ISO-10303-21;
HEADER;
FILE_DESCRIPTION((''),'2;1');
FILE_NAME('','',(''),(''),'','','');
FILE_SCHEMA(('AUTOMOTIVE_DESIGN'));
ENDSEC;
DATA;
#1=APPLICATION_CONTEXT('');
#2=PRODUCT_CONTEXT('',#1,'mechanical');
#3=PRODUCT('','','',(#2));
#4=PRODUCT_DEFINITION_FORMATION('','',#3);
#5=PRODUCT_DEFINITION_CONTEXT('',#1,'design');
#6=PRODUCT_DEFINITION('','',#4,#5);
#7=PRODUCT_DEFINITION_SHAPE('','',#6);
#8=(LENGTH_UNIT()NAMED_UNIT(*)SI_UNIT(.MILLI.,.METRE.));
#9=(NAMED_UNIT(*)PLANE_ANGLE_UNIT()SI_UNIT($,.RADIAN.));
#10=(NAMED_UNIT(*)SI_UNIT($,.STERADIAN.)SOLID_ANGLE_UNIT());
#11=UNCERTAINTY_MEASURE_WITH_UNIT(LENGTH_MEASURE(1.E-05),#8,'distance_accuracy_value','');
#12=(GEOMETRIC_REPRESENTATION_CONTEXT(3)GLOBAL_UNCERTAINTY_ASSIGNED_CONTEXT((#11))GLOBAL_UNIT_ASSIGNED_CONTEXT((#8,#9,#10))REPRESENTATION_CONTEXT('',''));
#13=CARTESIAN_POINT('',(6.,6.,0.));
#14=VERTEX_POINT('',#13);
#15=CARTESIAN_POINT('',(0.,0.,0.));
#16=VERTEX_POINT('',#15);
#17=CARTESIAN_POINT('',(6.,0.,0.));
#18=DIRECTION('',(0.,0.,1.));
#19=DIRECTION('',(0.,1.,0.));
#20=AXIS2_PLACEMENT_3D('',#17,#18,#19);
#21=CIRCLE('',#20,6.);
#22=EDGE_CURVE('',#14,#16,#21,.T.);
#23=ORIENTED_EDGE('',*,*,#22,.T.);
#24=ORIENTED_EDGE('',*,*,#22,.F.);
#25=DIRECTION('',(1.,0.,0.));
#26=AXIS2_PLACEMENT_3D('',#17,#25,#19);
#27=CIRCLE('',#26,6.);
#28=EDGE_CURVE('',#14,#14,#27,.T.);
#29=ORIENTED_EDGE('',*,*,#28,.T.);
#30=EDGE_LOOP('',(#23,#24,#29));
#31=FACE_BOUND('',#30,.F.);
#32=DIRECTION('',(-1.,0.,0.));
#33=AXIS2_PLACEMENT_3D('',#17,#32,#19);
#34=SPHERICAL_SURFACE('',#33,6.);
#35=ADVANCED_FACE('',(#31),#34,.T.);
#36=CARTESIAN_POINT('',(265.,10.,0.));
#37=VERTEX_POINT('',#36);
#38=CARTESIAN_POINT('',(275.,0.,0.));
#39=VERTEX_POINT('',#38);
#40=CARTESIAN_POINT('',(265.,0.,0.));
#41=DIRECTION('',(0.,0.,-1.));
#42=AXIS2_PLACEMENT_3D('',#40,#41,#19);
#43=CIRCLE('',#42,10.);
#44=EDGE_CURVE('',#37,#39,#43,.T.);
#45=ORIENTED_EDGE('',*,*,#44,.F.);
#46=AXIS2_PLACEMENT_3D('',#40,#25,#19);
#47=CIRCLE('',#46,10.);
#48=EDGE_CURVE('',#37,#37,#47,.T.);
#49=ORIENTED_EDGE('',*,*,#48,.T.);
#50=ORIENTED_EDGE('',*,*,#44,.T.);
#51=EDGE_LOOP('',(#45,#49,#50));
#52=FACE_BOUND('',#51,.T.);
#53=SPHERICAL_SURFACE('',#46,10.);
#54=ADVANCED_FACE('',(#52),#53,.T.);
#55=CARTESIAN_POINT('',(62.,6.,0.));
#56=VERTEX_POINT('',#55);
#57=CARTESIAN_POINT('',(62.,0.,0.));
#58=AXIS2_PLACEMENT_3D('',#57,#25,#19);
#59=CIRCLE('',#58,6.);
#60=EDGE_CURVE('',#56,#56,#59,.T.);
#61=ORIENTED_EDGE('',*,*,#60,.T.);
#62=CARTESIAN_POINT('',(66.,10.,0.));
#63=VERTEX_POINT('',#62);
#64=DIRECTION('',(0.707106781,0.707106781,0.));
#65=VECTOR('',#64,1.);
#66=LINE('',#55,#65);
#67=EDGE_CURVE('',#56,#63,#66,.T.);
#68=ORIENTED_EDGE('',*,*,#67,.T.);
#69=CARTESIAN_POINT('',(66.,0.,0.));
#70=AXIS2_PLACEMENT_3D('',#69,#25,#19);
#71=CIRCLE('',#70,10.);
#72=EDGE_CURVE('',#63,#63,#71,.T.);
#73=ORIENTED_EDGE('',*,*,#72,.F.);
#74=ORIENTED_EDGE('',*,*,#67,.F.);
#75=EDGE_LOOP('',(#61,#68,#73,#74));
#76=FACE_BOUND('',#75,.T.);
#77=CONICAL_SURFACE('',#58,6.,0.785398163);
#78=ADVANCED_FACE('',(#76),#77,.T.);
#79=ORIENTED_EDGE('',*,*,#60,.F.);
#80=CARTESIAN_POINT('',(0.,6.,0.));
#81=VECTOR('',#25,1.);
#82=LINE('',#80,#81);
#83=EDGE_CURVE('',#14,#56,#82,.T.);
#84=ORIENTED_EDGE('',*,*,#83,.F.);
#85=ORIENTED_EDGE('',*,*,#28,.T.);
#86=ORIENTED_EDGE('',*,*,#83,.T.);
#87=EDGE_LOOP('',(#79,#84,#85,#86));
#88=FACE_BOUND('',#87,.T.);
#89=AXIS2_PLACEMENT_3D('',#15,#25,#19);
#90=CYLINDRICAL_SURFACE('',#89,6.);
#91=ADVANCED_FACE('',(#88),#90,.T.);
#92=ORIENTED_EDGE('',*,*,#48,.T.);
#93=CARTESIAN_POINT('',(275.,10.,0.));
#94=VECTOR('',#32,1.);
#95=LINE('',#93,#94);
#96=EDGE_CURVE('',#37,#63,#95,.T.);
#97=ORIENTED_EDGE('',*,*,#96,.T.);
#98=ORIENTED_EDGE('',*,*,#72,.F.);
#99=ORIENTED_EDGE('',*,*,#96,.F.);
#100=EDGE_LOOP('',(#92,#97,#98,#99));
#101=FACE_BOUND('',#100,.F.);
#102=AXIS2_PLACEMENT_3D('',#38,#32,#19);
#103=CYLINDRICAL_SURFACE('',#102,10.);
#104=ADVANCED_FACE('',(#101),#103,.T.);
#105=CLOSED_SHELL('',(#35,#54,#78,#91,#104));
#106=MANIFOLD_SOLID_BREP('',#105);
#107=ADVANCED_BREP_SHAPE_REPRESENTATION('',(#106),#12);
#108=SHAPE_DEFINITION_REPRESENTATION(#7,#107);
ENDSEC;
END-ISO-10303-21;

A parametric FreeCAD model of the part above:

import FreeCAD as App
import Part
import Sketcher

V = App.Vector
Q = App.Units.Quantity


def edges_at(feature, points):
    """Names of the edges that pass closest to the given points."""
    edges = feature.Shape.Edges
    near = lambda p: min(range(len(edges)), key=lambda i: edges[i].distToShape(Part.Vertex(*p))[0])
    return sorted({f"Edge{near(p) + 1}" for p in points})


def add_polygon(sketch, points):
    """Adds a closed chain of lines whose ends are joined by coincident constraints."""
    first, n = sketch.GeometryCount, len(points)
    for a, b in zip(points, points[1:] + points[:1]):
        sketch.addGeometry(Part.LineSegment(App.Vector(*a, 0), App.Vector(*b, 0)), False)
    for i in range(n):
        sketch.addConstraint(Sketcher.Constraint("Coincident", first + i, 2, first + (i + 1) % n, 1))

doc = App.newDocument("Part")
body = doc.addObject("PartDesign::Body", "Body")

# Sketch on XY plane
sketch1 = body.newObject("Sketcher::SketchObject", "Sketch")
sketch1.AttachmentSupport = (doc.getObject("XY_Plane"), [""])
sketch1.MapMode = "FlatFace"
add_polygon(sketch1, [(0, 6), (0, 0), (275, 0), (275, 10), (66, 10), (62, 6)])  # lines 0-5
sketch1.addConstraint([
    Sketcher.Constraint("Vertical", 0),
    Sketcher.Constraint("Horizontal", 1),
    Sketcher.Constraint("Vertical", 2),
    Sketcher.Constraint("Horizontal", 3),
    Sketcher.Constraint("Horizontal", 5),
    Sketcher.Constraint("Coincident", 0, 2, -1, 1),
    Sketcher.Constraint("DistanceX", 1, 1, 1, 2, 275.0),
    Sketcher.Constraint("DistanceX", 5, 2, 5, 1, 62.0),
    Sketcher.Constraint("DistanceY", 0, 2, 0, 1, 6.0),
    Sketcher.Constraint("DistanceY", 2, 1, 2, 2, 10.0),
    Sketcher.Constraint("Angle", 4, Q("-135 deg")),
])
revolution = body.newObject("PartDesign::Revolution", "Revolution")
revolution.Profile = sketch1
revolution.ReferenceAxis = (sketch1, ["H_Axis"])
revolution.Angle = 360
doc.recompute()

fillet = body.newObject("PartDesign::Fillet", "Fillet")
fillet.Base = (revolution, edges_at(revolution, [(275, -10, 0)]))
fillet.Radius = 10
doc.recompute()

fillet2 = body.newObject("PartDesign::Fillet", "Fillet001")
fillet2.Base = (fillet, edges_at(fillet, [(0, -6, 0)]))
fillet2.Radius = 6

doc.recompute()
